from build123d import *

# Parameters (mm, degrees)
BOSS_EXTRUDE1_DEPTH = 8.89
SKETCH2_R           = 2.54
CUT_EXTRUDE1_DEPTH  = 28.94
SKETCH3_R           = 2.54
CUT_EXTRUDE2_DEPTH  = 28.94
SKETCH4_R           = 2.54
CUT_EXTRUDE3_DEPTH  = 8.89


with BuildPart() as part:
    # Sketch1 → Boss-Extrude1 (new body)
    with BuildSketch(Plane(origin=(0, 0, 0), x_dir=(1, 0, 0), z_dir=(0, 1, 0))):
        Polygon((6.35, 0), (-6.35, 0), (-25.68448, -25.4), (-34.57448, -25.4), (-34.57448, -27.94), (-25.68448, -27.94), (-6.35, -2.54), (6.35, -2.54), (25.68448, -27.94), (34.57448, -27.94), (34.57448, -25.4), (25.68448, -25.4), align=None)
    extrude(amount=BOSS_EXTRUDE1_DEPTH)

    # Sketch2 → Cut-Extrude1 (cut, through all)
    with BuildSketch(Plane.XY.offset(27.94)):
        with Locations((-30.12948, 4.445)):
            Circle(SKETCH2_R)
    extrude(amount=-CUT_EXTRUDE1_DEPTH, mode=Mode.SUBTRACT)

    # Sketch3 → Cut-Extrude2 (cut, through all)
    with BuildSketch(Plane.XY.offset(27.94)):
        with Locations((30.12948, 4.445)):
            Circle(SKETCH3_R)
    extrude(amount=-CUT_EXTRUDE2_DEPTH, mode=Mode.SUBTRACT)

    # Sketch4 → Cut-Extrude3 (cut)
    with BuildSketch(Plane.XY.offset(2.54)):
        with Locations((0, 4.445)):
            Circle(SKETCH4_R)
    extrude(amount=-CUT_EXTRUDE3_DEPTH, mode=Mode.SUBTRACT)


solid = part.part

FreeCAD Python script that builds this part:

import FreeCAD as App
import Part
import Sketcher

V = App.Vector
Q = App.Units.Quantity

doc = App.newDocument("Part")
body = doc.addObject("PartDesign::Body", "Body")

# Sketch on XZ plane
sketch1 = body.newObject("Sketcher::SketchObject", "Sketch")
sketch1.AttachmentSupport = (doc.getObject("XZ_Plane"), [""])
sketch1.MapMode = "FlatFace"
sketch1.addGeometry(Part.LineSegment(V(6.35, 0, 0), V(-6.35, 0, 0)), False)
sketch1.addGeometry(Part.LineSegment(V(-6.35, 0, 0), V(-25.68448, 25.4, 0)), False)
sketch1.addGeometry(Part.LineSegment(V(-25.68448, 25.4, 0), V(-34.57448, 25.4, 0)), False)
sketch1.addGeometry(Part.LineSegment(V(-34.57448, 25.4, 0), V(-34.57448, 27.94, 0)), False)
sketch1.addGeometry(Part.LineSegment(V(-34.57448, 27.94, 0), V(-25.68448, 27.94, 0)), False)
sketch1.addGeometry(Part.LineSegment(V(-25.68448, 27.94, 0), V(-6.35, 2.54, 0)), False)
sketch1.addGeometry(Part.LineSegment(V(-6.35, 2.54, 0), V(6.35, 2.54, 0)), False)
sketch1.addGeometry(Part.LineSegment(V(6.35, 2.54, 0), V(25.68448, 27.94, 0)), False)
sketch1.addGeometry(Part.LineSegment(V(25.68448, 27.94, 0), V(34.57448, 27.94, 0)), False)
sketch1.addGeometry(Part.LineSegment(V(34.57448, 27.94, 0), V(34.57448, 25.4, 0)), False)
sketch1.addGeometry(Part.LineSegment(V(34.57448, 25.4, 0), V(25.68448, 25.4, 0)), False)
sketch1.addGeometry(Part.LineSegment(V(25.68448, 25.4, 0), V(6.35, 0, 0)), False)
sketch1.addConstraint(Sketcher.Constraint("Coincident", 0, 2, 1, 1))
sketch1.addConstraint(Sketcher.Constraint("Coincident", 1, 2, 2, 1))
sketch1.addConstraint(Sketcher.Constraint("Coincident", 2, 2, 3, 1))
sketch1.addConstraint(Sketcher.Constraint("Coincident", 3, 2, 4, 1))
sketch1.addConstraint(Sketcher.Constraint("Coincident", 4, 2, 5, 1))
sketch1.addConstraint(Sketcher.Constraint("Coincident", 5, 2, 6, 1))
sketch1.addConstraint(Sketcher.Constraint("Coincident", 6, 2, 7, 1))
sketch1.addConstraint(Sketcher.Constraint("Coincident", 7, 2, 8, 1))
sketch1.addConstraint(Sketcher.Constraint("Coincident", 8, 2, 9, 1))
sketch1.addConstraint(Sketcher.Constraint("Coincident", 9, 2, 10, 1))
sketch1.addConstraint(Sketcher.Constraint("Coincident", 10, 2, 11, 1))
sketch1.addConstraint(Sketcher.Constraint("Coincident", 11, 2, 0, 1))
sketch1.addConstraint(Sketcher.Constraint("Horizontal", 0))
sketch1.addConstraint(Sketcher.Constraint("Horizontal", 2))
sketch1.addConstraint(Sketcher.Constraint("Vertical", 3))
sketch1.addConstraint(Sketcher.Constraint("Horizontal", 4))
sketch1.addConstraint(Sketcher.Constraint("Horizontal", 6))
sketch1.addConstraint(Sketcher.Constraint("Horizontal", 8))
sketch1.addConstraint(Sketcher.Constraint("Vertical", 9))
sketch1.addConstraint(Sketcher.Constraint("Horizontal", 10))
sketch1.addConstraint(Sketcher.Constraint("Symmetric", 0, 2, 11, 2, -1, 1))
sketch1.addConstraint(Sketcher.Constraint("Symmetric", 4, 2, 7, 2, -2))
sketch1.addConstraint(Sketcher.Constraint("Symmetric", 2, 2, 9, 2, -2))
sketch1.addConstraint(Sketcher.Constraint("Parallel", 1, 5))
sketch1.addConstraint(Sketcher.Constraint("Parallel", 7, 11))
sketch1.addConstraint(Sketcher.Constraint("Vertical", 1, 2, 4, 2))
sketch1.addConstraint(Sketcher.Constraint("Vertical", 0, 2, 5, 2))
sketch1.addConstraint(Sketcher.Constraint("Vertical", 7, 2, 10, 2))
sketch1.addConstraint(Sketcher.Constraint("DistanceX", 0, 2, 0, 1, Q("0.5 in")))
sketch1.addConstraint(Sketcher.Constraint("DistanceY", 3, 1, 3, 2, Q("0.1 in")))
sketch1.addConstraint(Sketcher.Constraint("DistanceY", -1, 1, 1, 2, Q("1 in")))
sketch1.addConstraint(Sketcher.Constraint("DistanceX", 2, 2, 2, 1, Q("0.35 in")))
sketch1.addConstraint(Sketcher.Constraint("DistanceX", 1, 2, -1, 1, Q("1.0112 in")))
pad1 = body.newObject("PartDesign::Pad", "Pad")
pad1.Profile = sketch1
pad1.Length = Q("0.35 in")
pad1.Reversed = True

# Sketch on XY plane
sketch2 = body.newObject("Sketcher::SketchObject", "Sketch001")
sketch2.AttachmentSupport = (doc.getObject("XY_Plane"), [""])
sketch2.MapMode = "FlatFace"
sketch2.AttachmentOffset = App.Placement(V(0, 0, 1.1 * 25.4), App.Rotation())
sketch2.addGeometry(Part.Circle(V(-30.12948, 4.445, 0), V(0, 0, 1), 2.54), False)
sketch2.addConstraint(Sketcher.Constraint("Diameter", 0, Q("0.2 in")))
sketch2.addConstraint(Sketcher.Constraint("DistanceY", -1, 1, 0, 3, Q("0.175 in")))
sketch2.addConstraint(Sketcher.Constraint("DistanceX", 0, 3, -1, 1, Q("1.1862 in")))
pocket1 = body.newObject("PartDesign::Pocket", "Pocket")
pocket1.Profile = sketch2
pocket1.Type = "ThroughAll"

# Sketch on XY plane
sketch3 = body.newObject("Sketcher::SketchObject", "Sketch002")
sketch3.AttachmentSupport = (doc.getObject("XY_Plane"), [""])
sketch3.MapMode = "FlatFace"
sketch3.AttachmentOffset = App.Placement(V(0, 0, 1.1 * 25.4), App.Rotation())
sketch3.addGeometry(Part.Circle(V(30.12948, 4.445, 0), V(0, 0, 1), 2.54), False)
sketch3.addConstraint(Sketcher.Constraint("Diameter", 0, Q("0.2 in")))
sketch3.addConstraint(Sketcher.Constraint("DistanceY", -1, 1, 0, 3, Q("0.175 in")))
sketch3.addConstraint(Sketcher.Constraint("DistanceX", -1, 1, 0, 3, Q("1.1862 in")))
pocket2 = body.newObject("PartDesign::Pocket", "Pocket001")
pocket2.Profile = sketch3
pocket2.Type = "ThroughAll"

# Sketch on XY plane
sketch4 = body.newObject("Sketcher::SketchObject", "Sketch003")
sketch4.AttachmentSupport = (doc.getObject("XY_Plane"), [""])
sketch4.MapMode = "FlatFace"
sketch4.AttachmentOffset = App.Placement(V(0, 0, 0.1 * 25.4), App.Rotation())
sketch4.addGeometry(Part.Circle(V(0, 4.445, 0), V(0, 0, 1), 2.54), False)
sketch4.addConstraint(Sketcher.Constraint("PointOnObject", 0, 3, -2))
sketch4.addConstraint(Sketcher.Constraint("Diameter", 0, Q("0.2 in")))
sketch4.addConstraint(Sketcher.Constraint("DistanceY", -1, 1, 0, 3, Q("0.175 in")))
pocket3 = body.newObject("PartDesign::Pocket", "Pocket002")
pocket3.Profile = sketch4
pocket3.Length = Q("0.35 in")

doc.recompute()
